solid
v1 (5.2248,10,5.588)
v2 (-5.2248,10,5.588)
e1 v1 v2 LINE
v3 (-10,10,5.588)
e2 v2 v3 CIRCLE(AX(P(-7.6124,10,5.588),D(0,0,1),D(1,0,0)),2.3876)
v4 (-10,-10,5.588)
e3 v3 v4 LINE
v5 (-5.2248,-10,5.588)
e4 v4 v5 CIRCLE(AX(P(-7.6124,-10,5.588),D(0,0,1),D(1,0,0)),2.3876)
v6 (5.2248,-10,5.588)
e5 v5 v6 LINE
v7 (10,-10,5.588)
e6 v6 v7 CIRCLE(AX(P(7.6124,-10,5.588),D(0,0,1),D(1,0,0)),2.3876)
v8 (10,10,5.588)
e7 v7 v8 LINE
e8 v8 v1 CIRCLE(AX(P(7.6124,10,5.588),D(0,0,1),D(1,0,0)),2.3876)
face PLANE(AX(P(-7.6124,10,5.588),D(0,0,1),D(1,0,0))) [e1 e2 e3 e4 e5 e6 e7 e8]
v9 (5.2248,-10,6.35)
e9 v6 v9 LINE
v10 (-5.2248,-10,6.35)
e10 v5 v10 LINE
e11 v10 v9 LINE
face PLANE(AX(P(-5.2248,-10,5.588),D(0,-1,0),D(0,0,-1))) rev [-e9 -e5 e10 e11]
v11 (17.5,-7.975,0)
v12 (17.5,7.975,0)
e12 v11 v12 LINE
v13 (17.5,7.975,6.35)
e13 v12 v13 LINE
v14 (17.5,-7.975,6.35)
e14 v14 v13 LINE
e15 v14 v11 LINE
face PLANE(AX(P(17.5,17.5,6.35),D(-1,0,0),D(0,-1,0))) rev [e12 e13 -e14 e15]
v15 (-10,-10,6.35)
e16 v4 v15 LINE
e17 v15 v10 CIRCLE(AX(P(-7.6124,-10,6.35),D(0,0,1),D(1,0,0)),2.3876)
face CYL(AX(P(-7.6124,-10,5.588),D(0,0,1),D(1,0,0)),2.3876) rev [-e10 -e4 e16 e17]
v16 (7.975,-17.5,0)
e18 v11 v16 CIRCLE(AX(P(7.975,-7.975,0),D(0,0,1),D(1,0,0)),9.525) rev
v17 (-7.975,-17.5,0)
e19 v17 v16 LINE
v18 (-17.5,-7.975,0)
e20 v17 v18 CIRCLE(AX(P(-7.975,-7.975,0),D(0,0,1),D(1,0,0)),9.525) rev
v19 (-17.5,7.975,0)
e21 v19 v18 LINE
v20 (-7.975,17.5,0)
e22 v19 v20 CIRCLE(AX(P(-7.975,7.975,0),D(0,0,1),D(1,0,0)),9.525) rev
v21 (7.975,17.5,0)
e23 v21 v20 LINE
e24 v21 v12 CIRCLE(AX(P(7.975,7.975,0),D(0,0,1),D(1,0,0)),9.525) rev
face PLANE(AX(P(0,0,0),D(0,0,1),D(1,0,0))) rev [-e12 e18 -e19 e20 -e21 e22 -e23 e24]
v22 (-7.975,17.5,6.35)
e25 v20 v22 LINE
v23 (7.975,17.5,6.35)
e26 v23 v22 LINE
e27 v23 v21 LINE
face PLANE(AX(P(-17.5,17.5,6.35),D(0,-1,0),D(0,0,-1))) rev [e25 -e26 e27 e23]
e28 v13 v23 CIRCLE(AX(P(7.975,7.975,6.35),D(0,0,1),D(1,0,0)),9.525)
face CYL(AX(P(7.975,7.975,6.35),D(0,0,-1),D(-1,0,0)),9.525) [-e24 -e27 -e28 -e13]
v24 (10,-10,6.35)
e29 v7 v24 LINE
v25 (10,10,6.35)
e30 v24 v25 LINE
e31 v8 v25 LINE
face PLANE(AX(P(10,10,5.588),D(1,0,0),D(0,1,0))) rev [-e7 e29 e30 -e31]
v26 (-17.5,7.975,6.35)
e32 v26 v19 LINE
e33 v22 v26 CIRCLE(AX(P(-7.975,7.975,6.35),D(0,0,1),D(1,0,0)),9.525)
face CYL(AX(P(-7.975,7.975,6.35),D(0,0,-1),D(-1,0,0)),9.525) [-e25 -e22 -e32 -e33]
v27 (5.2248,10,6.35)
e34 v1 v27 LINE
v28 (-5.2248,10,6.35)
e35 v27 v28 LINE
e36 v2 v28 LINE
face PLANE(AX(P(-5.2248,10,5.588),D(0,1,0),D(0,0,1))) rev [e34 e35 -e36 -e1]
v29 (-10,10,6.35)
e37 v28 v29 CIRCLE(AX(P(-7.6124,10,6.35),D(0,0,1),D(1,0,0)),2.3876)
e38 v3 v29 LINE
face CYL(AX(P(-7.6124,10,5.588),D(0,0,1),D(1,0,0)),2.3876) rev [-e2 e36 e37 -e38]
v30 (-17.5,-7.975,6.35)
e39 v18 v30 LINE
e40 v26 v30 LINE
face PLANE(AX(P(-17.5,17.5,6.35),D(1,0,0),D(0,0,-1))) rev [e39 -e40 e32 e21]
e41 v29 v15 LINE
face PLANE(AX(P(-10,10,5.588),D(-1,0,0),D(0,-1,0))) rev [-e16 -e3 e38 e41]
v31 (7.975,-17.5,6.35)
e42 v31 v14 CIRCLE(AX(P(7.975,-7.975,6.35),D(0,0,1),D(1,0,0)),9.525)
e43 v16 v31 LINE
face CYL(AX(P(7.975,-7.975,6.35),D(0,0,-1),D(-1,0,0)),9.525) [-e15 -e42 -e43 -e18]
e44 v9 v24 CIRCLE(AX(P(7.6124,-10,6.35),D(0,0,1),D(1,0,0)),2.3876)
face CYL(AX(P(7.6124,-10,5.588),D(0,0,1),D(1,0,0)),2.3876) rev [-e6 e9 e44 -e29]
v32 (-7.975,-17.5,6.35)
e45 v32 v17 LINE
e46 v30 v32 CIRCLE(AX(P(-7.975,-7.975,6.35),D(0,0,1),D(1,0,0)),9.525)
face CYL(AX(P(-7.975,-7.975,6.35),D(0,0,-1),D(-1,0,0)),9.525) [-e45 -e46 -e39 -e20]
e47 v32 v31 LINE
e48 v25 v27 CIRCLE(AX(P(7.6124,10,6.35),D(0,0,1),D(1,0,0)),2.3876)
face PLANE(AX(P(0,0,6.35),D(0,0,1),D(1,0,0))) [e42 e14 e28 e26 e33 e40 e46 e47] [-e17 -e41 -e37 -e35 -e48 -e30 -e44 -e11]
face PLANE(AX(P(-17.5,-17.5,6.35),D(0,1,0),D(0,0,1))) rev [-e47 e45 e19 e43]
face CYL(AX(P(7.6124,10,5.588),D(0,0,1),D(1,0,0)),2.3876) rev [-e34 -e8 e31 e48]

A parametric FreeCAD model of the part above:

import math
import FreeCAD as App
import Part
import Sketcher
from FreeCAD import Vector
Q = App.Units.Quantity


def edges_at(feature, points):
    """Names of the edges that pass closest to the given points."""
    edges = feature.Shape.Edges
    near = lambda p: min(range(len(edges)), key=lambda i: edges[i].distToShape(Part.Vertex(*p))[0])
    return sorted({f"Edge{near(p) + 1}" for p in points})

doc = App.newDocument("Part")
body = doc.addObject("PartDesign::Body", "Body")

sketch1 = body.newObject("Sketcher::SketchObject", "Sketch")
sketch1.AttachmentSupport = (doc.getObject("XY_Plane"), [""])
sketch1.MapMode = "FlatFace"
sketch1.addGeometry(Part.LineSegment(Vector(-18, 18, 0), Vector(-18, -18, 0)), False)
sketch1.addGeometry(Part.LineSegment(Vector(-18, -18, 0), Vector(18, -18, 0)), False)
sketch1.addGeometry(Part.LineSegment(Vector(18, -18, 0), Vector(18, 18, 0)), False)
sketch1.addGeometry(Part.LineSegment(Vector(18, 18, 0), Vector(-18, 18, 0)), False)
sketch1.addConstraint(Sketcher.Constraint("Coincident", 0, 2, 1, 1))
sketch1.addConstraint(Sketcher.Constraint("Coincident", 1, 2, 2, 1))
sketch1.addConstraint(Sketcher.Constraint("Coincident", 2, 2, 3, 1))
sketch1.addConstraint(Sketcher.Constraint("Coincident", 3, 2, 0, 1))
sketch1.addConstraint(Sketcher.Constraint("Vertical", 0))
sketch1.addConstraint(Sketcher.Constraint("Horizontal", 1))
sketch1.addConstraint(Sketcher.Constraint("Vertical", 2))
sketch1.addConstraint(Sketcher.Constraint("Horizontal", 3))
sketch1.addConstraint(Sketcher.Constraint("Symmetric", 0, 2, 2, 2, -1, 1))
sketch1.addConstraint(Sketcher.Constraint("Equal", 3, 0))
sketch1.addConstraint(Sketcher.Constraint("DistanceX", 1, 1, 1, 2, 35.0))
pad1 = body.newObject("PartDesign::Pad", "Pad")
pad1.Profile = sketch1
pad1.Length = Q("0.25 in")

sketch2 = body.newObject("Sketcher::SketchObject", "Sketch001")
sketch2.AttachmentSupport = (doc.getObject("XY_Plane"), [""])
sketch2.MapMode = "FlatFace"
sketch2.AttachmentOffset = App.Placement(Vector(0, 0, 0.25 * 25.4), App.Rotation())
sketch2.addGeometry(Part.LineSegment(Vector(-10, 10, 0), Vector(-10, -10, 0)), False)
sketch2.addGeometry(Part.ArcOfCircle(Part.Circle(Vector(-7.6, -10, 0), Vector(0, 0, 1), 2.4), math.radians(180), math.radians(360)), False)
sketch2.addGeometry(Part.LineSegment(Vector(-5.2, -10, 0), Vector(5.2, -10, 0)), False)
sketch2.addGeometry(Part.ArcOfCircle(Part.Circle(Vector(7.6, -10, 0), Vector(0, 0, 1), 2.4), math.radians(180), math.radians(360)), False)
sketch2.addGeometry(Part.LineSegment(Vector(10, -10, 0), Vector(10, 10, 0)), False)
sketch2.addGeometry(Part.ArcOfCircle(Part.Circle(Vector(7.6, 10, 0), Vector(0, 0, 1), 2.4), math.radians(0), math.radians(180)), False)
sketch2.addGeometry(Part.LineSegment(Vector(5.2, 10, 0), Vector(-5.2, 10, 0)), False)
sketch2.addGeometry(Part.ArcOfCircle(Part.Circle(Vector(-7.6, 10, 0), Vector(0, 0, 1), 2.4), math.radians(0), math.radians(180)), False)
sketch2.addConstraint(Sketcher.Constraint("Tangent", 0, 2, 1, 1))
sketch2.addConstraint(Sketcher.Constraint("Coincident", 1, 2, 2, 1))
sketch2.addConstraint(Sketcher.Constraint("Coincident", 2, 2, 3, 1))
sketch2.addConstraint(Sketcher.Constraint("Tangent", 3, 2, 4, 1))
sketch2.addConstraint(Sketcher.Constraint("Tangent", 4, 2, 5, 1))
sketch2.addConstraint(Sketcher.Constraint("Coincident", 5, 2, 6, 1))
sketch2.addConstraint(Sketcher.Constraint("Coincident", 6, 2, 7, 1))
sketch2.addConstraint(Sketcher.Constraint("Tangent", 7, 2, 0, 1))
sketch2.addConstraint(Sketcher.Constraint("Vertical", 0))
sketch2.addConstraint(Sketcher.Constraint("Horizontal", 2))
sketch2.addConstraint(Sketcher.Constraint("Vertical", 4))
sketch2.addConstraint(Sketcher.Constraint("Horizontal", 6))
sketch2.addConstraint(Sketcher.Constraint("Equal", 1, 3))
sketch2.addConstraint(Sketcher.Constraint("Equal", 3, 5))
sketch2.addConstraint(Sketcher.Constraint("Equal", 5, 7))
sketch2.addConstraint(Sketcher.Constraint("Symmetric", 1, 3, 5, 3, -1, 1))
sketch2.addConstraint(Sketcher.Constraint("Horizontal", 1, 3, 3, 3))
sketch2.addConstraint(Sketcher.Constraint("Horizontal", 5, 3, 7, 3))
sketch2.addConstraint(Sketcher.Constraint("Horizontal", 0, 2, 1, 2))
sketch2.addConstraint(Sketcher.Constraint("Horizontal", 4, 2, 5, 2))
sketch2.addConstraint(Sketcher.Constraint("Radius", 1, Q("0.094 in")))
sketch2.addConstraint(Sketcher.Constraint("DistanceX", 2, 1, 2, 2, 10.4496))
sketch2.addConstraint(Sketcher.Constraint("DistanceY", 0, 2, 0, 1, 20.0))
pocket1 = body.newObject("PartDesign::Pocket", "Pocket")
pocket1.Profile = sketch2
pocket1.Length = Q("0.03 in")
doc.recompute()

fillet = body.newObject("PartDesign::Fillet", "Fillet")
fillet.Base = (pocket1, edges_at(pocket1, [
    (17.5, -17.5, 3.175),
    (-17.5, -17.5, 3.175),
    (-17.5, 17.5, 3.175),
    (17.5, 17.5, 3.175),
]))
fillet.Radius = Q("0.375 in")

doc.recompute()
